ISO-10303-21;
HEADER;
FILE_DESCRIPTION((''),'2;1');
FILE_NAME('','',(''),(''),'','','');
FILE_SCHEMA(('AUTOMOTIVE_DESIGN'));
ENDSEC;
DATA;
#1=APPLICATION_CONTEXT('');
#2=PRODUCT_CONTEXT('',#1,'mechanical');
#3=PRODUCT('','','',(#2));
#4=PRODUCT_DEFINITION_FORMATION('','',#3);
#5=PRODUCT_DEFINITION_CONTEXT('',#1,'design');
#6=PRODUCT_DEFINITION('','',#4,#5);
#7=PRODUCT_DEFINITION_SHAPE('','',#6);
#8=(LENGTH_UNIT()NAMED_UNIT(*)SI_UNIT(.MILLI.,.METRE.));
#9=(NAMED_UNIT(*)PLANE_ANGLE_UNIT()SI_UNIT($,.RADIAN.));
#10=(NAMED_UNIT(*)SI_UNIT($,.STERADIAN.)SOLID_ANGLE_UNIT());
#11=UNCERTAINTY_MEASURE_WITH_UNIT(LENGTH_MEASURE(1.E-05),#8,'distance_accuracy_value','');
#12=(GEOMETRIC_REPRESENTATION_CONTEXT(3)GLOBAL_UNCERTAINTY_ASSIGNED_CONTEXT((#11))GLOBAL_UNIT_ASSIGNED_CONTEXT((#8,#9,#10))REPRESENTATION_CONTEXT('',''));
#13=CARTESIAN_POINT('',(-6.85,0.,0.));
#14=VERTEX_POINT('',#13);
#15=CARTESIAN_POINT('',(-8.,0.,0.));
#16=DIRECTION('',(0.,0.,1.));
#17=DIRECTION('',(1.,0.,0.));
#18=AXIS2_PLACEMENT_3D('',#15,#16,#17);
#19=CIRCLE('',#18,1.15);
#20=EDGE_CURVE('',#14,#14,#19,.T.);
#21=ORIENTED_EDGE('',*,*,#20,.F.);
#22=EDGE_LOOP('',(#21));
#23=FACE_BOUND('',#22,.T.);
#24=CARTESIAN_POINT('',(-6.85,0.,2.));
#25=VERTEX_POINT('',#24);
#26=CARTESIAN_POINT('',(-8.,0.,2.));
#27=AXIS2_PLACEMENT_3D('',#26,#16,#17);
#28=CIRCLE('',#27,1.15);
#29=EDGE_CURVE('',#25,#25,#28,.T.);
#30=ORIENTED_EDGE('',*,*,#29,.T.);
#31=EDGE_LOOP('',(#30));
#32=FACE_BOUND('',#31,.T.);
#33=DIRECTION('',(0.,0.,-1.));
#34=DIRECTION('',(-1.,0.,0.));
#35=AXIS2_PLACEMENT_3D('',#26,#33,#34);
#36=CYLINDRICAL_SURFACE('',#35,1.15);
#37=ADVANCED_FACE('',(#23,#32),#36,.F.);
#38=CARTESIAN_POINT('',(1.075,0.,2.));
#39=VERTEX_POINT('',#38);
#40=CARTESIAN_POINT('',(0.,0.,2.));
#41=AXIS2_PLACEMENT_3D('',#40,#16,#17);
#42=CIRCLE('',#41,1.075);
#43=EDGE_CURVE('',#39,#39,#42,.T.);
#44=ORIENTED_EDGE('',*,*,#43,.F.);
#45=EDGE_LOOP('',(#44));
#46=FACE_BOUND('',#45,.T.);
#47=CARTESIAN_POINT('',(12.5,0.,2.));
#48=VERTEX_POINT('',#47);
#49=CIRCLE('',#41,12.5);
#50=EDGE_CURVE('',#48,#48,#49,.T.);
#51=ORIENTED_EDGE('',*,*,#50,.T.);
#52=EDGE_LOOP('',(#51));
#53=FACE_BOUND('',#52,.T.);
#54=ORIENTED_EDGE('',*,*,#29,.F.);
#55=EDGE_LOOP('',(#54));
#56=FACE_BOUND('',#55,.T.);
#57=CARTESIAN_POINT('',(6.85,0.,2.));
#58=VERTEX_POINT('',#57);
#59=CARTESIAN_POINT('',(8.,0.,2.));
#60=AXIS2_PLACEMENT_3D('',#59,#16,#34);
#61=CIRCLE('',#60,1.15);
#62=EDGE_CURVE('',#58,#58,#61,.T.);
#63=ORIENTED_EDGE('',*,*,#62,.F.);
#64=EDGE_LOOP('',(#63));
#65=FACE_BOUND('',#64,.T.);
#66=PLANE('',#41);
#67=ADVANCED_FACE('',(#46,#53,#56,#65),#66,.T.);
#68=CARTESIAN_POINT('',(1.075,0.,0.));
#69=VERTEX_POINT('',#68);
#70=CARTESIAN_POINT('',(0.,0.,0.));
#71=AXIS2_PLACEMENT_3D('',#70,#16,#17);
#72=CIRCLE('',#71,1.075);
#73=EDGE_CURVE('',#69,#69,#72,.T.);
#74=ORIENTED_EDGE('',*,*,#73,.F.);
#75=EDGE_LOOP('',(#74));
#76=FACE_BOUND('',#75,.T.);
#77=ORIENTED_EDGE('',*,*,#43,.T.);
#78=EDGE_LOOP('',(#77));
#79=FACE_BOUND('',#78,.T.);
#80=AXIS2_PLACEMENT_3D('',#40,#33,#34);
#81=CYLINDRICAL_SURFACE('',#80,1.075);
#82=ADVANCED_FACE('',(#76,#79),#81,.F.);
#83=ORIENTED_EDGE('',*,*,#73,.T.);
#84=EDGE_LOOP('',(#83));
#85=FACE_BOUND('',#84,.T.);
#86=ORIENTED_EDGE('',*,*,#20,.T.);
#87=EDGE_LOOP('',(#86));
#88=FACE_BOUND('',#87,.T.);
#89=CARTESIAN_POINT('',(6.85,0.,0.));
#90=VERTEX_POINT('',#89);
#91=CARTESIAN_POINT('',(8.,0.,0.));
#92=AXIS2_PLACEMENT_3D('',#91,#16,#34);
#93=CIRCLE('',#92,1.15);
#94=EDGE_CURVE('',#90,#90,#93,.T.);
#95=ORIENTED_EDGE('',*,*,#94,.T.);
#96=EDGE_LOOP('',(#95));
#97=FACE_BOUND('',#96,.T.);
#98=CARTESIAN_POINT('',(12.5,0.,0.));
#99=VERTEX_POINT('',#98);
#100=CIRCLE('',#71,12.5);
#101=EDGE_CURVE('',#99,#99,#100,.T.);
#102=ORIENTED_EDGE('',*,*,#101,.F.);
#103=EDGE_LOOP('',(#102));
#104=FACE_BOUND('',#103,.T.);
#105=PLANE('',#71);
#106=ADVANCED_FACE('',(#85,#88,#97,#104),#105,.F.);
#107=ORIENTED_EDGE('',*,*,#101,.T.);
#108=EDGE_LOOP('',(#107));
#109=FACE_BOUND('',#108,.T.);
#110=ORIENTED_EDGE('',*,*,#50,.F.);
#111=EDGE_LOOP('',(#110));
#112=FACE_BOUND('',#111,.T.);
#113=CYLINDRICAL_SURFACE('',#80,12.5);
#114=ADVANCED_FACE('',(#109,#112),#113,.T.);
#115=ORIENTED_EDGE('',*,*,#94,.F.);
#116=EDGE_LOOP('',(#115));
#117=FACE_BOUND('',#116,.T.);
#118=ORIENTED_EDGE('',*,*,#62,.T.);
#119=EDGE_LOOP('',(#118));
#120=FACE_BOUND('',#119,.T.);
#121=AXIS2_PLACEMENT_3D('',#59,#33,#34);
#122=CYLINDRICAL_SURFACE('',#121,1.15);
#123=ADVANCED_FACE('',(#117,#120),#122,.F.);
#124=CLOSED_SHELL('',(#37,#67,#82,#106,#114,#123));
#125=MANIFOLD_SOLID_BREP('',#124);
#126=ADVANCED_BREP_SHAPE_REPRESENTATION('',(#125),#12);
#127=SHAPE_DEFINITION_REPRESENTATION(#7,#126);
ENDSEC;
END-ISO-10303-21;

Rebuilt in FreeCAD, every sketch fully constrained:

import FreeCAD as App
import Part
import Sketcher
from FreeCAD import Vector
Q = App.Units.Quantity

doc = App.newDocument("Part")
body = doc.addObject("PartDesign::Body", "Body")

# Sketch on XY plane
sketch1 = body.newObject("Sketcher::SketchObject", "Sketch")
sketch1.AttachmentSupport = (doc.getObject("XY_Plane"), [""])
sketch1.MapMode = "FlatFace"
sketch1.addGeometry([
    Part.Circle(Vector(0, 0, 0), Vector(0, 0, 1), 12.5),
    Part.Circle(Vector(-8, 0, 0), Vector(0, 0, 1), 1.15),
    Part.Circle(Vector(0, 0, 0), Vector(0, 0, 1), 1.075),
    Part.Circle(Vector(8, 0, 0), Vector(0, 0, 1), 1.15),
], False)
sketch1.addConstraint([
    Sketcher.Constraint("Coincident", 0, 3, -1, 1),
    Sketcher.Constraint("Coincident", 2, 3, -1, 1),
    Sketcher.Constraint("Equal", 1, 3),
    Sketcher.Constraint("Symmetric", 1, 3, 3, 3, -1, 1),
    Sketcher.Constraint("PointOnObject", 1, 3, -1),
    Sketcher.Constraint("Diameter", 0, Q("25 mm")),
    Sketcher.Constraint("Diameter", 1, Q("2.3 mm")),
    Sketcher.Constraint("Diameter", 2, Q("2.15 mm")),
    Sketcher.Constraint("DistanceX", 1, 3, -1, 1, Q("8 mm")),
])
pad1 = body.newObject("PartDesign::Pad", "Pad")
pad1.Profile = sketch1
pad1.Length = 2

doc.recompute()
